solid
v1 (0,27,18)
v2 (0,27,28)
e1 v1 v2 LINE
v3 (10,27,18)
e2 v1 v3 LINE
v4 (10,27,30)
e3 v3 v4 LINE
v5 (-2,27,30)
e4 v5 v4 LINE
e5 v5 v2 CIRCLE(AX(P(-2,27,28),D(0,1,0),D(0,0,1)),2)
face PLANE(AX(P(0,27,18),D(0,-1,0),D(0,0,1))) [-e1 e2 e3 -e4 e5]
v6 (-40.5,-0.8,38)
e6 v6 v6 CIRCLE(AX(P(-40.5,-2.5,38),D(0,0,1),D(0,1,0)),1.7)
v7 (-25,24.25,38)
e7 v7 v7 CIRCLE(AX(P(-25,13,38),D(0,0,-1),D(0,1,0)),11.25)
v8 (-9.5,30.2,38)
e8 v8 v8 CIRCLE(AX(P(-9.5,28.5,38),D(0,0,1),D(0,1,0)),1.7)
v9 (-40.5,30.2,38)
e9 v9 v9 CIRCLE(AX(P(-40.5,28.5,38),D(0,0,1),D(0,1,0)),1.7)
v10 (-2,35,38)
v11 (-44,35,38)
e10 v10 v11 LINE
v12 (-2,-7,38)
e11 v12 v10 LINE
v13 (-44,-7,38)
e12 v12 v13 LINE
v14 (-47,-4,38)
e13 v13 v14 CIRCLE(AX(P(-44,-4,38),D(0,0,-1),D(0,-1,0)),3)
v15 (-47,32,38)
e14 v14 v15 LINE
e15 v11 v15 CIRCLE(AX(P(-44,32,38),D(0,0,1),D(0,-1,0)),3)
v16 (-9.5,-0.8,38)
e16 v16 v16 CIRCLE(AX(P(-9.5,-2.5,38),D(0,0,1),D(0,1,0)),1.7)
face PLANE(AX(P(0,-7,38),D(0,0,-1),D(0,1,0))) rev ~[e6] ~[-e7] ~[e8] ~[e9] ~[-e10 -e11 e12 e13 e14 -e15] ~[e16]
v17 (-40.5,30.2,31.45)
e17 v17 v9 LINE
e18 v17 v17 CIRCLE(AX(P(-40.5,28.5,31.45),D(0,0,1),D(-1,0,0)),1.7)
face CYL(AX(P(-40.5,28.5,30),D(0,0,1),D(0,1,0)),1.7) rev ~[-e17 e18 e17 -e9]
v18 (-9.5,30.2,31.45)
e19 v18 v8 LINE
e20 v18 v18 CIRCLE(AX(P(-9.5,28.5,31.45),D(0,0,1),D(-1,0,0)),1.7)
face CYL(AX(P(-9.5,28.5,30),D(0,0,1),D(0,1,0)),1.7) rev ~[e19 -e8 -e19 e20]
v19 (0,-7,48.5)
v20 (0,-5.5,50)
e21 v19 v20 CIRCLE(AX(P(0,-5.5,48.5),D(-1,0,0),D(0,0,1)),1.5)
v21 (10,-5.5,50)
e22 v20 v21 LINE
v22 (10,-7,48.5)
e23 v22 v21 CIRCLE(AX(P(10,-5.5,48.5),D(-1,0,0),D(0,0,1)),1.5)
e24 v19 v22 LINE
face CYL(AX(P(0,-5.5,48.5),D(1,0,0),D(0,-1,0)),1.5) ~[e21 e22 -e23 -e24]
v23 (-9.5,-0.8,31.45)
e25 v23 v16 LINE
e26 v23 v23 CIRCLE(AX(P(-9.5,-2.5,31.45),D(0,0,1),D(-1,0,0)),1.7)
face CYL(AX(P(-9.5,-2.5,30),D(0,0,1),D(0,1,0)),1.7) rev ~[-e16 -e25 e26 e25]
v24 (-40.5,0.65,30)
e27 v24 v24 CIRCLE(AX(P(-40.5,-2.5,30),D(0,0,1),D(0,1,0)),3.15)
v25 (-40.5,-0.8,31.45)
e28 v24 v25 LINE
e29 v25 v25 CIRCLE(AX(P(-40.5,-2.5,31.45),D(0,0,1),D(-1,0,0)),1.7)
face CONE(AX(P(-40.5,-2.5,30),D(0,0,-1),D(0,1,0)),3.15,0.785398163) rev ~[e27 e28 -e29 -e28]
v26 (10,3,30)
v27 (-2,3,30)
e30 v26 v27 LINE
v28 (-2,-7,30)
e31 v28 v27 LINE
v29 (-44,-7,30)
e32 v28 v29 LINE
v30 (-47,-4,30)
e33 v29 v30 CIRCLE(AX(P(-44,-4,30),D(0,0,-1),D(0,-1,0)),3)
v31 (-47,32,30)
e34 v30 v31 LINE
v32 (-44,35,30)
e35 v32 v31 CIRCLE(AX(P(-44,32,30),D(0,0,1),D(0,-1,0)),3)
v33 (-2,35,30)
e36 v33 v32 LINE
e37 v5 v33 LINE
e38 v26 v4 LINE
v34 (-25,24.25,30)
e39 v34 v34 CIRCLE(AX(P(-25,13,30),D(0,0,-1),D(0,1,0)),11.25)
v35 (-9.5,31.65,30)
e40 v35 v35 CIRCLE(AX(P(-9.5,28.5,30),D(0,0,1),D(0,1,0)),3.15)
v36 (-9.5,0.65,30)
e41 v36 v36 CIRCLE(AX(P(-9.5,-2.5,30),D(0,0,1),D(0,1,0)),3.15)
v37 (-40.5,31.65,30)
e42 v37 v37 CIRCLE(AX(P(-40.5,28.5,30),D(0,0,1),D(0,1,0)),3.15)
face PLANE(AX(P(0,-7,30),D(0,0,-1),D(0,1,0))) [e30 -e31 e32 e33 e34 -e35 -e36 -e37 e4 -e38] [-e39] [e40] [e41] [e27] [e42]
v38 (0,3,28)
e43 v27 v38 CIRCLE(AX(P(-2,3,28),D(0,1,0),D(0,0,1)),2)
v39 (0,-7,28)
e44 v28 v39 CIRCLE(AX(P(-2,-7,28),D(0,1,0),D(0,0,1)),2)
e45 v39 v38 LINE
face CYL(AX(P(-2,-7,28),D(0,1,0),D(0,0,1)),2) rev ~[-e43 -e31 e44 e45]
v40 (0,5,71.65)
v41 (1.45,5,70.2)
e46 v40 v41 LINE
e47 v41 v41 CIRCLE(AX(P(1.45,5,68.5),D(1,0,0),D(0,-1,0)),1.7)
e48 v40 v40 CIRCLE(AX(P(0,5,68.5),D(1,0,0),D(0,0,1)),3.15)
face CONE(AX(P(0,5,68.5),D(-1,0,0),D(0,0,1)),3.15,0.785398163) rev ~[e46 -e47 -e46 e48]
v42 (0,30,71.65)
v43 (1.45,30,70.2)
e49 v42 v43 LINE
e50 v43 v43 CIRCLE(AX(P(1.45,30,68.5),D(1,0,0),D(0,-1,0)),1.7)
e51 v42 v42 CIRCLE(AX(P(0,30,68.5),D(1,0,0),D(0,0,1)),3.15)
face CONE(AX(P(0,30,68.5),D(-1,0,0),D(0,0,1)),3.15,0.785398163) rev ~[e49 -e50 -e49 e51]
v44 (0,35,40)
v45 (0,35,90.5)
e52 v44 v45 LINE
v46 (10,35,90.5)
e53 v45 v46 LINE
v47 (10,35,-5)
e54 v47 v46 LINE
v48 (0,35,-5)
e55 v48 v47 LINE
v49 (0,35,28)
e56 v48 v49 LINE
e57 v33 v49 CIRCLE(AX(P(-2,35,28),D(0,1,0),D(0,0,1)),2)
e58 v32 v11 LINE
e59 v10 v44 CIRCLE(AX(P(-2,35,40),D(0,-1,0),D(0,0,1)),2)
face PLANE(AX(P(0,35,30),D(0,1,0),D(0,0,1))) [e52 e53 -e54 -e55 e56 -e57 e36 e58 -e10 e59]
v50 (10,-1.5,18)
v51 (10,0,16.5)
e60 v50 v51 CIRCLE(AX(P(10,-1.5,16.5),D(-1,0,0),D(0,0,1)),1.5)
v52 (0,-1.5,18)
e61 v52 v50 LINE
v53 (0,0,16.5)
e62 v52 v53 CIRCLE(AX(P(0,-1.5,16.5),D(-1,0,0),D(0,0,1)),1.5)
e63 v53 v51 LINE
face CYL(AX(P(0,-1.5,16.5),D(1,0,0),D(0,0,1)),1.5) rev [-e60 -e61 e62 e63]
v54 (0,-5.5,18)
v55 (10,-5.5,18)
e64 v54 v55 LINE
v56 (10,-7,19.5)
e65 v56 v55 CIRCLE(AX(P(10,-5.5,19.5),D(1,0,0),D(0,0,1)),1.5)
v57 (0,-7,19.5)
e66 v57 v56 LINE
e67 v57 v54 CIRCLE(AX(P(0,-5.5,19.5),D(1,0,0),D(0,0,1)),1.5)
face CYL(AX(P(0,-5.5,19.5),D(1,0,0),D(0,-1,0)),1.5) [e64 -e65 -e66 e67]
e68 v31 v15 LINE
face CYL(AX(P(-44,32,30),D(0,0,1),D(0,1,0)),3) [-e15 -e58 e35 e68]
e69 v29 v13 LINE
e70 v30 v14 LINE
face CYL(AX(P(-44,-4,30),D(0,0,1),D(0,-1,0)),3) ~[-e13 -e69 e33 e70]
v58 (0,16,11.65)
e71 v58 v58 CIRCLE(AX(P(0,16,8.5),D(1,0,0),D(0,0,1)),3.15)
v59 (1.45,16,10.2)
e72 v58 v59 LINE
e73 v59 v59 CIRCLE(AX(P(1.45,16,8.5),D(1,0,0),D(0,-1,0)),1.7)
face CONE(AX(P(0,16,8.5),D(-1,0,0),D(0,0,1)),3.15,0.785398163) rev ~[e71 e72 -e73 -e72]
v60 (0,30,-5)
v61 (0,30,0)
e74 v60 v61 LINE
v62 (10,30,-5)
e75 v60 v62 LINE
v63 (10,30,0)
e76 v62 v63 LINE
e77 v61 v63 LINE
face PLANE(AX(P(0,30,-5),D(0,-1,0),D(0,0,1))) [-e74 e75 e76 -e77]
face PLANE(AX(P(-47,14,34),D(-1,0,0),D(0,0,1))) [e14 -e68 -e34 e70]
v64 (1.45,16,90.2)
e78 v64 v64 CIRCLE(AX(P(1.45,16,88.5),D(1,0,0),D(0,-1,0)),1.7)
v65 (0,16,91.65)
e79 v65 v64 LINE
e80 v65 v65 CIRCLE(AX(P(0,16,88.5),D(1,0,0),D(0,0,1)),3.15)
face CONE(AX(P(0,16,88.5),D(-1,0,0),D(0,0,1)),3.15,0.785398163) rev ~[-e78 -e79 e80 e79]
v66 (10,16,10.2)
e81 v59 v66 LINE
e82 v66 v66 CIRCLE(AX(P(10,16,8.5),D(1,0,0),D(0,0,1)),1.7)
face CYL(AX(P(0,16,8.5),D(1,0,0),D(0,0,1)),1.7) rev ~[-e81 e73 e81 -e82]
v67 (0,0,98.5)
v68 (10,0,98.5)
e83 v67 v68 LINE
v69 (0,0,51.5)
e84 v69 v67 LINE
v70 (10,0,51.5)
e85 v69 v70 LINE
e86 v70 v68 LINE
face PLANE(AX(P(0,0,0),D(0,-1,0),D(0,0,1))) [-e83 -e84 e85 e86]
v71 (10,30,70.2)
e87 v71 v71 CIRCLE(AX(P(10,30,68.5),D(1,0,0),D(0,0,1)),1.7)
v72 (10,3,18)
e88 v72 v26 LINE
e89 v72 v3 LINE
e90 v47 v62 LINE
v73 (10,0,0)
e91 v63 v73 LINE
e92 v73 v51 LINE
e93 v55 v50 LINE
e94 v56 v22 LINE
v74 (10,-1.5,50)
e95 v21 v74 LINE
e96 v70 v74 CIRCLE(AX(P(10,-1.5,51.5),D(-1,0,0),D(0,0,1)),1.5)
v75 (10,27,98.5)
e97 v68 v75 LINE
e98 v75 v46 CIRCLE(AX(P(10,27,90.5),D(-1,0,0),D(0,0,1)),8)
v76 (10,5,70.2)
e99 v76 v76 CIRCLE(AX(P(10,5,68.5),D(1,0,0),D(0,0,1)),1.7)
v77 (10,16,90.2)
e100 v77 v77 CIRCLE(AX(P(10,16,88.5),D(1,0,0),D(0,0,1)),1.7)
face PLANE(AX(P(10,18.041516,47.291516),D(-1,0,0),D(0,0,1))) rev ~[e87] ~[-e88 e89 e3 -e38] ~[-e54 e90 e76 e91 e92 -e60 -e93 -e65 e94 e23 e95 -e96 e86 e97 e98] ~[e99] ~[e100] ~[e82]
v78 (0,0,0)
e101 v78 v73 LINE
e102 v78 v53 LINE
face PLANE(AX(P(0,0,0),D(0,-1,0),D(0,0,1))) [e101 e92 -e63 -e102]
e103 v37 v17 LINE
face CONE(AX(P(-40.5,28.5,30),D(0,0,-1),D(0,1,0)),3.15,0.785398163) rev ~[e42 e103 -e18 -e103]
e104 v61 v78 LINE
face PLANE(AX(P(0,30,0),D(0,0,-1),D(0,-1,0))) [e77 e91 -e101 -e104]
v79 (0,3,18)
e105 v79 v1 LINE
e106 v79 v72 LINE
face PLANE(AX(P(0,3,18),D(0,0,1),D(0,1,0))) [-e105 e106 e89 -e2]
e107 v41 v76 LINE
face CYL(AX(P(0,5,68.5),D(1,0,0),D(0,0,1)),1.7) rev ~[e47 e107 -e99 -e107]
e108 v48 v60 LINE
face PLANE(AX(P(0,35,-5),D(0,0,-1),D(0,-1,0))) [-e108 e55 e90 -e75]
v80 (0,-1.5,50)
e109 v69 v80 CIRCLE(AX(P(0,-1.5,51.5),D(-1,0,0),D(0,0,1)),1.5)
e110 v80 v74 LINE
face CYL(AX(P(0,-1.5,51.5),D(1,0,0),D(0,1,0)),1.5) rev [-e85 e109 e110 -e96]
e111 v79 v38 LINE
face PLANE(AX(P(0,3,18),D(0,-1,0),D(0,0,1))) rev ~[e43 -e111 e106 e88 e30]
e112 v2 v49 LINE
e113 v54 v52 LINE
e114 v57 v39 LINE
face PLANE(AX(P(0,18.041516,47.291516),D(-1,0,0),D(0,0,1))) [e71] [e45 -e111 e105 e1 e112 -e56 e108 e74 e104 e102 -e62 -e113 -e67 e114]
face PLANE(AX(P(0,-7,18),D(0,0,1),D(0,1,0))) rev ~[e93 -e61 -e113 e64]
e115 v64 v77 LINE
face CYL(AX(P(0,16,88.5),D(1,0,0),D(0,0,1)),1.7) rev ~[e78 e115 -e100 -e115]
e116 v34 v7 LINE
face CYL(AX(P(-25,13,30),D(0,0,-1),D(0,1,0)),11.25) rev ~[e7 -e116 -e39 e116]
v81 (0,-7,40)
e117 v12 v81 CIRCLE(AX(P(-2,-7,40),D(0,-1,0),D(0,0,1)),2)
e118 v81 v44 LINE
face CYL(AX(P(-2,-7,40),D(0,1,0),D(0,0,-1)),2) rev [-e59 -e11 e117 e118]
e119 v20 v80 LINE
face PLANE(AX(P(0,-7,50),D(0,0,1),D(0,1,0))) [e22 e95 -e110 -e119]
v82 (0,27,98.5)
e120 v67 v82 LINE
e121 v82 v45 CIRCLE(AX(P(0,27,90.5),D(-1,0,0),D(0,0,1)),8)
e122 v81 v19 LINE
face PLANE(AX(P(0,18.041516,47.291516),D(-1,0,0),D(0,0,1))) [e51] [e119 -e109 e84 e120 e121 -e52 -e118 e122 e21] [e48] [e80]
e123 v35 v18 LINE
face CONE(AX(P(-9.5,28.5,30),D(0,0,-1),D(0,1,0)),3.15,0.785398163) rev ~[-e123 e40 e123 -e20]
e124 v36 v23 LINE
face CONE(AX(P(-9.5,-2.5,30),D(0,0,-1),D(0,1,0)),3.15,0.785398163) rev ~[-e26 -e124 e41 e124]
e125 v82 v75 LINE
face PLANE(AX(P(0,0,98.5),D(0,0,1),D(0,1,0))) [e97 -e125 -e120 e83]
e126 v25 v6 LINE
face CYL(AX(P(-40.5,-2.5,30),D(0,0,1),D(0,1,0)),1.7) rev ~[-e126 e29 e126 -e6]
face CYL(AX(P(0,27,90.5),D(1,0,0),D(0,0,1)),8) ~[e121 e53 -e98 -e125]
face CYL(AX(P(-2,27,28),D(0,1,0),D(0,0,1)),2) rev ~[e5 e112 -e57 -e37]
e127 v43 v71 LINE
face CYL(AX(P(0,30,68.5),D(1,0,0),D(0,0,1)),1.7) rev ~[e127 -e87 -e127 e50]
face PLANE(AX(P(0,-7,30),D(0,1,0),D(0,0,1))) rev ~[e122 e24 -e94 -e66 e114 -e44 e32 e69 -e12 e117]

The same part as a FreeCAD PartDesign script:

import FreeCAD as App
import Part
import Sketcher
Q = App.Units.Quantity


def edges_at(feature, points):
    """Names of the edges that pass closest to the given points."""
    edges = feature.Shape.Edges
    near = lambda p: min(range(len(edges)), key=lambda i: edges[i].distToShape(Part.Vertex(*p))[0])
    return sorted({f"Edge{near(p) + 1}" for p in points})

doc = App.newDocument("Part")
body = doc.addObject("PartDesign::Body", "Body")

# Sketch on YZ plane
sketch1 = body.newObject("Sketcher::SketchObject", "Sketch")
sketch1.AttachmentSupport = (doc.getObject("YZ_Plane"), [""])
sketch1.MapMode = "FlatFace"
sketch1.addGeometry([
    Part.LineSegment(App.Vector(0, 98, 0), App.Vector(0, 0, 0)),  # 0
    Part.LineSegment(App.Vector(0, 0, 0), App.Vector(30, 0, 0)),  # 1
    Part.LineSegment(App.Vector(30, 0, 0), App.Vector(30, -5, 0)),  # 2
    Part.LineSegment(App.Vector(30, -5, 0), App.Vector(35, -5, 0)),  # 3
    Part.LineSegment(App.Vector(35, -5, 0), App.Vector(35, 98, 0)),  # 4
    Part.LineSegment(App.Vector(35, 98, 0), App.Vector(0, 98, 0)),  # 5
], False)
sketch1.addConstraint([
    Sketcher.Constraint("Coincident", 0, 2, 1, 1),
    Sketcher.Constraint("Coincident", 1, 2, 2, 1),
    Sketcher.Constraint("Coincident", 2, 2, 3, 1),
    Sketcher.Constraint("Coincident", 3, 2, 4, 1),
    Sketcher.Constraint("Coincident", 4, 2, 5, 1),
    Sketcher.Constraint("Coincident", 5, 2, 0, 1),
    Sketcher.Constraint("Vertical", 0),
    Sketcher.Constraint("Horizontal", 1),
    Sketcher.Constraint("Vertical", 2),
    Sketcher.Constraint("Horizontal", 3),
    Sketcher.Constraint("Vertical", 4),
    Sketcher.Constraint("Horizontal", 5),
    Sketcher.Constraint("Coincident", 0, 2, -1, 1),
    Sketcher.Constraint("Equal", 3, 2),
    Sketcher.Constraint("DistanceX", 1, 1, 1, 2, Q("30 mm")),
    Sketcher.Constraint("DistanceX", 3, 1, 3, 2, Q("5 mm")),
    Sketcher.Constraint("DistanceY", 0, 2, 0, 1, Q("98.5 mm")),
])
pad1 = body.newObject("PartDesign::Pad", "Pad")
pad1.Profile = sketch1
pad1.Length = 10

# Sketch on YZ plane
sketch2 = body.newObject("Sketcher::SketchObject", "Sketch001")
sketch2.AttachmentSupport = (doc.getObject("YZ_Plane"), [""])
sketch2.MapMode = "FlatFace"
sketch2.addGeometry([
    Part.Circle(App.Vector(16, 8.5, 0), App.Vector(0, 0, 1), 1.7),
    Part.Circle(App.Vector(30, 68.5, 0), App.Vector(0, 0, 1), 1.7),
    Part.Circle(App.Vector(5, 68.5, 0), App.Vector(0, 0, 1), 1.7),
    Part.Circle(App.Vector(16, 88.5, 0), App.Vector(0, 0, 1), 1.7),
], False)
sketch2.addConstraint([
    Sketcher.Constraint("Equal", 0, 1),
    Sketcher.Constraint("Equal", 1, 2),
    Sketcher.Constraint("Equal", 2, 3),
    Sketcher.Constraint("Horizontal", 1, 3, 2, 3),
    Sketcher.Constraint("Vertical", 0, 3, 3, 3),
    Sketcher.Constraint("Diameter", 0, Q("3.4 mm")),
    Sketcher.Constraint("DistanceX", -1, 1, 0, 3, Q("16 mm")),
    Sketcher.Constraint("DistanceX", -1, 1, 1, 3, Q("30 mm")),
    Sketcher.Constraint("DistanceX", -1, 1, 2, 3, Q("5 mm")),
    Sketcher.Constraint("DistanceY", 0, 3, 1, 3, Q("60 mm")),
    Sketcher.Constraint("DistanceY", 2, 3, 3, 3, Q("20 mm")),
    Sketcher.Constraint("DistanceY", -1, 1, 0, 3, Q("8.5 mm")),
])
doc.recompute()
hole = body.newObject("PartDesign::Hole", "Hole")
hole.Profile = sketch2
hole.ThreadType = "None"
hole.Diameter = 3.4
hole.DepthType = "ThroughAll"
hole.HoleCutType = "Countersink"
hole.HoleCutDiameter = 6.3
hole.HoleCutCountersinkAngle = 90
hole.Reversed = True

# Sketch on YZ plane
sketch3 = body.newObject("Sketcher::SketchObject", "Sketch002")
sketch3.AttachmentSupport = (doc.getObject("YZ_Plane"), [""])
sketch3.MapMode = "FlatFace"
sketch3.addGeometry([
    Part.LineSegment(App.Vector(27, 18, 0), App.Vector(3, 18, 0)),
    Part.LineSegment(App.Vector(3, 18, 0), App.Vector(3, 30, 0)),
    Part.LineSegment(App.Vector(3, 30, 0), App.Vector(27, 30, 0)),
    Part.LineSegment(App.Vector(27, 30, 0), App.Vector(27, 18, 0)),
], False)
sketch3.addConstraint([
    Sketcher.Constraint("Coincident", 0, 2, 1, 1),
    Sketcher.Constraint("Coincident", 1, 2, 2, 1),
    Sketcher.Constraint("Coincident", 2, 2, 3, 1),
    Sketcher.Constraint("Coincident", 3, 2, 0, 1),
    Sketcher.Constraint("Horizontal", 0),
    Sketcher.Constraint("Vertical", 1),
    Sketcher.Constraint("Horizontal", 2),
    Sketcher.Constraint("Vertical", 3),
    Sketcher.Constraint("DistanceX", 0, 2, 0, 1, Q("24 mm")),
    Sketcher.Constraint("DistanceY", 1, 1, 1, 2, Q("12 mm")),
    Sketcher.Constraint("DistanceX", -1, 1, 0, 2, Q("3 mm")),
    Sketcher.Constraint("DistanceY", -1, 1, 0, 2, Q("18 mm")),
])
pocket1 = body.newObject("PartDesign::Pocket", "Pocket")
pocket1.Profile = sketch3
pocket1.Length = 10
pocket1.Reversed = True

# Sketch on YZ plane
sketch4 = body.newObject("Sketcher::SketchObject", "Sketch003")
sketch4.AttachmentSupport = (doc.getObject("YZ_Plane"), [""])
sketch4.MapMode = "FlatFace"
sketch4.addGeometry([
    Part.LineSegment(App.Vector(0, 18, 0), App.Vector(-7, 18, 0)),
    Part.LineSegment(App.Vector(-7, 18, 0), App.Vector(-7, 50, 0)),
    Part.LineSegment(App.Vector(-7, 50, 0), App.Vector(0, 50, 0)),
    Part.LineSegment(App.Vector(0, 50, 0), App.Vector(0, 18, 0)),
], False)
sketch4.addConstraint([
    Sketcher.Constraint("Coincident", 0, 2, 1, 1),
    Sketcher.Constraint("Coincident", 1, 2, 2, 1),
    Sketcher.Constraint("Coincident", 2, 2, 3, 1),
    Sketcher.Constraint("Coincident", 3, 2, 0, 1),
    Sketcher.Constraint("Horizontal", 0),
    Sketcher.Constraint("Vertical", 1),
    Sketcher.Constraint("Horizontal", 2),
    Sketcher.Constraint("Vertical", 3),
    Sketcher.Constraint("PointOnObject", 2, 2, -2),
    Sketcher.Constraint("DistanceX", 0, 2, 0, 1, Q("7 mm")),
    Sketcher.Constraint("DistanceY", 1, 1, 1, 2, Q("32 mm")),
    Sketcher.Constraint("DistanceY", -1, 1, 0, 2, Q("18 mm")),
])
pad2 = body.newObject("PartDesign::Pad", "Pad001")
pad2.Profile = sketch4
pad2.Length = 10

# Sketch on YZ plane
sketch5 = body.newObject("Sketcher::SketchObject", "Sketch004")
sketch5.AttachmentSupport = (doc.getObject("YZ_Plane"), [""])
sketch5.MapMode = "FlatFace"
sketch5.addGeometry([
    Part.LineSegment(App.Vector(35, 30, 0), App.Vector(-7, 30, 0)),
    Part.LineSegment(App.Vector(-7, 30, 0), App.Vector(-7, 38, 0)),
    Part.LineSegment(App.Vector(-7, 38, 0), App.Vector(35, 38, 0)),
    Part.LineSegment(App.Vector(35, 38, 0), App.Vector(35, 30, 0)),
], False)
sketch5.addConstraint([
    Sketcher.Constraint("Coincident", 0, 2, 1, 1),
    Sketcher.Constraint("Coincident", 1, 2, 2, 1),
    Sketcher.Constraint("Coincident", 2, 2, 3, 1),
    Sketcher.Constraint("Coincident", 3, 2, 0, 1),
    Sketcher.Constraint("Horizontal", 0),
    Sketcher.Constraint("Vertical", 1),
    Sketcher.Constraint("Horizontal", 2),
    Sketcher.Constraint("Vertical", 3),
    Sketcher.Constraint("DistanceX", 0, 2, 0, 1, Q("42 mm")),
    Sketcher.Constraint("DistanceY", 1, 1, 1, 2, Q("8 mm")),
    Sketcher.Constraint("DistanceX", 0, 2, -1, 1, Q("7 mm")),
    Sketcher.Constraint("DistanceY", -1, 1, 0, 2, Q("30 mm")),
])
pad3 = body.newObject("PartDesign::Pad", "Pad002")
pad3.Profile = sketch5
pad3.Length = 47
pad3.Reversed = True

# Sketch on XY plane
sketch6 = body.newObject("Sketcher::SketchObject", "Sketch005")
sketch6.AttachmentSupport = (doc.getObject("XY_Plane"), [""])
sketch6.MapMode = "FlatFace"
sketch6.AttachmentOffset = App.Placement(App.Vector(0, 0, 30), App.Rotation())
sketch6.addGeometry(Part.Circle(App.Vector(-25, 13, 0), App.Vector(0, 0, 1), 11), False)
sketch6.addConstraint([
    Sketcher.Constraint("Diameter", 0, Q("22.5 mm")),
    Sketcher.Constraint("DistanceX", 0, 3, -1, 1, Q("25 mm")),
    Sketcher.Constraint("DistanceY", -1, 1, 0, 3, Q("13 mm")),
])
pocket2 = body.newObject("PartDesign::Pocket", "Pocket001")
pocket2.Profile = sketch6
pocket2.Length = 47
pocket2.Reversed = True

# Sketch on XY plane
sketch7 = body.newObject("Sketcher::SketchObject", "Sketch006")
sketch7.AttachmentSupport = (doc.getObject("XY_Plane"), [""])
sketch7.MapMode = "FlatFace"
sketch7.AttachmentOffset = App.Placement(App.Vector(0, 0, 30), App.Rotation())
sketch7.addGeometry([
    Part.Circle(App.Vector(-9.5, 28.5, 0), App.Vector(0, 0, 1), 1.7),
    Part.Circle(App.Vector(-40.5, 28.5, 0), App.Vector(0, 0, 1), 1.7),
    Part.Circle(App.Vector(-40.5, -2.5, 0), App.Vector(0, 0, 1), 1.7),
    Part.Circle(App.Vector(-9.5, -2.5, 0), App.Vector(0, 0, 1), 1.7),
], False)
sketch7.addConstraint([
    Sketcher.Constraint("Equal", 0, 1),
    Sketcher.Constraint("Equal", 1, 2),
    Sketcher.Constraint("Equal", 2, 3),
    Sketcher.Constraint("Horizontal", 0, 3, 1, 3),
    Sketcher.Constraint("Horizontal", 2, 3, 3, 3),
    Sketcher.Constraint("Vertical", 1, 3, 2, 3),
    Sketcher.Constraint("Vertical", 0, 3, 3, 3),
    Sketcher.Constraint("Diameter", 0, Q("3.4 mm")),
    Sketcher.Constraint("DistanceX", 1, 3, 0, 3, Q("31 mm")),
    Sketcher.Constraint("DistanceY", 2, 3, 1, 3, Q("31 mm")),
    Sketcher.Constraint("DistanceX", 0, 3, -1, 1, Q("9.5 mm")),
    Sketcher.Constraint("DistanceY", -1, 1, 0, 3, Q("28.5 mm")),
])
doc.recompute()
hole2 = body.newObject("PartDesign::Hole", "Hole001")
hole2.Profile = sketch7
hole2.ThreadType = "None"
hole2.Diameter = 3.4
hole2.DepthType = "ThroughAll"
hole2.HoleCutType = "Countersink"
hole2.HoleCutDiameter = 6.3
hole2.HoleCutCountersinkAngle = 90
hole2.Reversed = True
doc.recompute()

fillet = body.newObject("PartDesign::Fillet", "Fillet")
fillet.Base = (hole2, edges_at(hole2, [(5, 35, 98.5)]))
fillet.Radius = 8
doc.recompute()

fillet2 = body.newObject("PartDesign::Fillet", "Fillet001")
fillet2.Base = (fillet, edges_at(fillet, [
    (5, -7, 18),
    (5, 0, 18),
    (5, 0, 50),
    (5, -7, 50),
]))
fillet2.Radius = 1.5
doc.recompute()

fillet3 = body.newObject("PartDesign::Fillet", "Fillet002")
fillet3.Base = (fillet2, edges_at(fillet2, [(-47, -7, 34), (-47, 35, 34)]))
fillet3.Radius = 3
doc.recompute()

fillet4 = body.newObject("PartDesign::Fillet", "Fillet003")
fillet4.Base = (fillet3, edges_at(fillet3, [(0, -2, 30), (0, 31, 30), (0, 14, 38)]))
fillet4.Radius = 2

doc.recompute()
